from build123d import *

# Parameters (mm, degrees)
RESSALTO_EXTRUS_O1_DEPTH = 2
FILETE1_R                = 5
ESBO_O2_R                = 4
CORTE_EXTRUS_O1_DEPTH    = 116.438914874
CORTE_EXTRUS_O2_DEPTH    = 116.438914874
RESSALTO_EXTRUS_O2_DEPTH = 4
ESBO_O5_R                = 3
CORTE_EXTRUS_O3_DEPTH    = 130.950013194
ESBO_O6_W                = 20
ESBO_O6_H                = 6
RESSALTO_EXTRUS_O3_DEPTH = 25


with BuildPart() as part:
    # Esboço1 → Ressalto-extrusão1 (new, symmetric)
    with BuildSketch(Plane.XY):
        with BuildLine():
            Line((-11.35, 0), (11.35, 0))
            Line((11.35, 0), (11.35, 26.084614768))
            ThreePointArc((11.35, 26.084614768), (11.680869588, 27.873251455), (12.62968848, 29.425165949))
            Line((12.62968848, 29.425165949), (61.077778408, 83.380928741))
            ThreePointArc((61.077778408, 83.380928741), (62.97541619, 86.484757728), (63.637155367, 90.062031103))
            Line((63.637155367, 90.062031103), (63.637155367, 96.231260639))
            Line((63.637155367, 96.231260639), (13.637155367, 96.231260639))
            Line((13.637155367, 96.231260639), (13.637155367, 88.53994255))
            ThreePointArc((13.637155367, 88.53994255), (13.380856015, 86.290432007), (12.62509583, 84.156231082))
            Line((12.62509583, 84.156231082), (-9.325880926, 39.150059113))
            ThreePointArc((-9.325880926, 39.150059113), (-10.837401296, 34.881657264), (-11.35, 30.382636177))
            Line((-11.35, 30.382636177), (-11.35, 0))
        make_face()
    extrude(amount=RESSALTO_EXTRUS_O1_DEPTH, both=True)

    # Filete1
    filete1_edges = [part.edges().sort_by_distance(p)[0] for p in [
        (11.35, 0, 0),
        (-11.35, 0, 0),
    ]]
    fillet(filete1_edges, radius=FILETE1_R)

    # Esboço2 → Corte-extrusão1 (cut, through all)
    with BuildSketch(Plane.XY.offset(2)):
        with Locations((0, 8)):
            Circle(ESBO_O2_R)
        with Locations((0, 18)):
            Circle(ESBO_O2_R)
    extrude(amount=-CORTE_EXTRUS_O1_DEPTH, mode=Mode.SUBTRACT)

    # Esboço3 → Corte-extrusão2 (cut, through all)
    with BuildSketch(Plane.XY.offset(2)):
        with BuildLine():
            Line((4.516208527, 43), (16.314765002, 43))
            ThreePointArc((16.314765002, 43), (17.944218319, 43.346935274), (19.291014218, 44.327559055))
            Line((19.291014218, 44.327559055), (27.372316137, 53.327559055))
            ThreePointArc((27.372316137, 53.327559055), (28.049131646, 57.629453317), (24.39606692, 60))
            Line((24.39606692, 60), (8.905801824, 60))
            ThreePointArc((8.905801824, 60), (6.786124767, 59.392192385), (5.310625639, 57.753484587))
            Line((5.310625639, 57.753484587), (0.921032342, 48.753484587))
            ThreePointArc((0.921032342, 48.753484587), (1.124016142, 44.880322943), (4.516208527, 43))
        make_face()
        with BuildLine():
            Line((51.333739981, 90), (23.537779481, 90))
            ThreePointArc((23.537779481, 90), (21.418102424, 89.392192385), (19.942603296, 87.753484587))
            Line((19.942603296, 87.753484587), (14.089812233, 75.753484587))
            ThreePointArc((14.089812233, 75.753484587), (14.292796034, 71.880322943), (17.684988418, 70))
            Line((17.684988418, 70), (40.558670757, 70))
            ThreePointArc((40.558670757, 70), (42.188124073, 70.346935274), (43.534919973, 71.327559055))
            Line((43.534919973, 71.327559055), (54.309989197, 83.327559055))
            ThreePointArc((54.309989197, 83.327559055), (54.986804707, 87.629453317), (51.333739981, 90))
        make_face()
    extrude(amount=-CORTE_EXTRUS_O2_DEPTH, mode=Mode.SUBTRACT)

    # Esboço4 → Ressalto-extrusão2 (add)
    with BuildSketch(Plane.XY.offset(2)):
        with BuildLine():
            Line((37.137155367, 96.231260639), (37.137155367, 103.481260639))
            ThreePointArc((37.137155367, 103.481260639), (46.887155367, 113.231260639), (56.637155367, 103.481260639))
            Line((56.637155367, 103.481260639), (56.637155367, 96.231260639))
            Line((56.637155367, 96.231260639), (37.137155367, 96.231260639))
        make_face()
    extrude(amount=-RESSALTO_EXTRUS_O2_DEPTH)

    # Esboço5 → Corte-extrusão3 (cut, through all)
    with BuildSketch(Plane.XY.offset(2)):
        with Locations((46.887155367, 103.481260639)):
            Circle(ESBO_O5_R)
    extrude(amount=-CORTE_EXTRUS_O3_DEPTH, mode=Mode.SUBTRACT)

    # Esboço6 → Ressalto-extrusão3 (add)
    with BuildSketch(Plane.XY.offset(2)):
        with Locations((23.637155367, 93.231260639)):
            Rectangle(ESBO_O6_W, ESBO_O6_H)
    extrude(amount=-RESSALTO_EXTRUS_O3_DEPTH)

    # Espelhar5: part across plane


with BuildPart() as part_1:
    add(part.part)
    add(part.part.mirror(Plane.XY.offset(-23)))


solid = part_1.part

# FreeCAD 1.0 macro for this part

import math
import FreeCAD as App
import Part
import Sketcher
from FreeCAD import Vector
Q = App.Units.Quantity


def edges_at(feature, points):
    """Names of the edges that pass closest to the given points."""
    edges = feature.Shape.Edges
    near = lambda p: min(range(len(edges)), key=lambda i: edges[i].distToShape(Part.Vertex(*p))[0])
    return sorted({f"Edge{near(p) + 1}" for p in points})

doc = App.newDocument("Part")
body = doc.addObject("PartDesign::Body", "Body")

sketch1 = body.newObject("Sketcher::SketchObject", "Sketch")
sketch1.AttachmentSupport = (doc.getObject("XY_Plane"), [""])
sketch1.MapMode = "FlatFace"
sketch1.addGeometry([
    Part.LineSegment(Vector(-11.3, 0, 0), Vector(11.3, 0, 0)),
    Part.LineSegment(Vector(11.3, 0, 0), Vector(11.3, 26.1, 0)),
    Part.ArcOfCircle(Part.Circle(Vector(16.3, 26.1, 0), Vector(0, 0, 1), 5), math.radians(138), math.radians(180)),
    Part.LineSegment(Vector(12.6, 29.4, 0), Vector(61.1, 83.4, 0)),
    Part.ArcOfCircle(Part.Circle(Vector(53.6, 90.1, 0), Vector(0, 0, 1), 10), math.radians(-42), math.radians(0)),
    Part.LineSegment(Vector(63.6, 90.1, 0), Vector(63.6, 96.2, 0)),
    Part.LineSegment(Vector(63.6, 96.2, 0), Vector(13.6, 96.2, 0)),
    Part.LineSegment(Vector(13.6, 96.2, 0), Vector(13.6, 88.5, 0)),
    Part.ArcOfCircle(Part.Circle(Vector(3.6, 88.5, 0), Vector(0, 0, 1), 10), math.radians(-26), math.radians(0)),
    Part.LineSegment(Vector(12.6, 84.2, 0), Vector(-9.3, 39.2, 0)),
    Part.ArcOfCircle(Part.Circle(Vector(8.6, 30.4, 0), Vector(0, 0, 1), 20), math.radians(154), math.radians(180)),
    Part.LineSegment(Vector(-11.3, 30.4, 0), Vector(-11.3, 0, 0)),
], False)
sketch1.addConstraint([
    Sketcher.Constraint("Coincident", 0, 2, 1, 1),
    Sketcher.Constraint("Tangent", 1, 2, 2, 2),
    Sketcher.Constraint("Tangent", 2, 1, 3, 1),
    Sketcher.Constraint("Tangent", 3, 2, 4, 1),
    Sketcher.Constraint("Tangent", 4, 2, 5, 1),
    Sketcher.Constraint("Coincident", 5, 2, 6, 1),
    Sketcher.Constraint("Coincident", 6, 2, 7, 1),
    Sketcher.Constraint("Tangent", 7, 2, 8, 2),
    Sketcher.Constraint("Tangent", 8, 1, 9, 1),
    Sketcher.Constraint("Tangent", 9, 2, 10, 1),
    Sketcher.Constraint("Tangent", 10, 2, 11, 1),
    Sketcher.Constraint("Coincident", 11, 2, 0, 1),
    Sketcher.Constraint("Horizontal", 0),
    Sketcher.Constraint("Vertical", 1),
    Sketcher.Constraint("Vertical", 5),
    Sketcher.Constraint("Horizontal", 6),
    Sketcher.Constraint("Vertical", 7),
    Sketcher.Constraint("Vertical", 11),
    Sketcher.Constraint("Equal", 4, 8),
    Sketcher.Constraint("Symmetric", 0, 2, 11, 2, -1, 1),
    Sketcher.Constraint("Radius", 2, 5.0),
    Sketcher.Constraint("Radius", 4, 10.0),
    Sketcher.Constraint("Radius", 10, 20.0),
    Sketcher.Constraint("DistanceX", 6, 2, 6, 1, 50.0),
    Sketcher.Constraint("Angle", 9, Q("-116 deg")),
    Sketcher.Constraint("DistanceX", 0, 1, 0, 2, 22.7),
    Sketcher.Constraint("DistanceY", 5, 1, 5, 2, 6.16923),
    Sketcher.Constraint("DistanceY", 7, 2, 7, 1, 7.691318),
    Sketcher.Constraint("DistanceY", 1, 1, 1, 2, 26.084615),
    Sketcher.Constraint("DistanceY", 11, 2, 11, 1, 30.382636),
    Sketcher.Constraint("DistanceY", -1, 1, 4, 3, 90.062031),
])
pad1 = body.newObject("PartDesign::Pad", "Pad")
pad1.Profile = sketch1
pad1.Length = 4
pad1.Midplane = True
doc.recompute()

fillet = body.newObject("PartDesign::Fillet", "Fillet")
fillet.Base = (pad1, edges_at(pad1, [(11.35, 0, 0), (-11.35, 0, 0)]))
fillet.Radius = 5

sketch2 = body.newObject("Sketcher::SketchObject", "Sketch001")
sketch2.AttachmentSupport = (doc.getObject("XY_Plane"), [""])
sketch2.MapMode = "FlatFace"
sketch2.AttachmentOffset = App.Placement(Vector(0, 0, 2), App.Rotation())
sketch2.addGeometry([
    Part.Circle(Vector(0, 8, 0), Vector(0, 0, 1), 4),
    Part.Circle(Vector(0, 18, 0), Vector(0, 0, 1), 4),
], False)
sketch2.addConstraint([
    Sketcher.Constraint("Equal", 0, 1),
    Sketcher.Constraint("PointOnObject", 0, 3, -2),
    Sketcher.Constraint("PointOnObject", 1, 3, -2),
    Sketcher.Constraint("Diameter", 0, 8.0),
    Sketcher.Constraint("DistanceY", -1, 1, 0, 3, 8.0),
    Sketcher.Constraint("DistanceY", -1, 1, 1, 3, 18.0),
])
pocket1 = body.newObject("PartDesign::Pocket", "Pocket")
pocket1.Profile = sketch2
pocket1.Type = "ThroughAll"

sketch3 = body.newObject("Sketcher::SketchObject", "Sketch002")
sketch3.AttachmentSupport = (doc.getObject("XY_Plane"), [""])
sketch3.MapMode = "FlatFace"
sketch3.AttachmentOffset = App.Placement(Vector(0, 0, 2), App.Rotation())
sketch3.addGeometry([
    Part.LineSegment(Vector(4.5, 43, 0), Vector(16.3, 43, 0)),
    Part.ArcOfCircle(Part.Circle(Vector(16.3, 47, 0), Vector(0, 0, 1), 4), math.radians(-90), math.radians(-42)),
    Part.LineSegment(Vector(19.3, 44.3, 0), Vector(27.4, 53.3, 0)),
    Part.ArcOfCircle(Part.Circle(Vector(24.4, 56, 0), Vector(0, 0, 1), 4), math.radians(-42), math.radians(90)),
    Part.LineSegment(Vector(24.4, 60, 0), Vector(8.9, 60, 0)),
    Part.ArcOfCircle(Part.Circle(Vector(8.9, 56, 0), Vector(0, 0, 1), 4), math.radians(90), math.radians(154)),
    Part.LineSegment(Vector(5.3, 57.8, 0), Vector(0.9, 48.8, 0)),
    Part.ArcOfCircle(Part.Circle(Vector(4.5, 47, 0), Vector(0, 0, 1), 4), math.radians(154), math.radians(270)),
    Part.LineSegment(Vector(51.3, 90, 0), Vector(23.5, 90, 0)),
    Part.ArcOfCircle(Part.Circle(Vector(23.5, 86, 0), Vector(0, 0, 1), 4), math.radians(90), math.radians(154)),
    Part.LineSegment(Vector(19.9, 87.8, 0), Vector(14.1, 75.8, 0)),
    Part.ArcOfCircle(Part.Circle(Vector(17.7, 74, 0), Vector(0, 0, 1), 4), math.radians(154), math.radians(270)),
    Part.LineSegment(Vector(17.7, 70, 0), Vector(40.6, 70, 0)),
    Part.ArcOfCircle(Part.Circle(Vector(40.6, 74, 0), Vector(0, 0, 1), 4), math.radians(-90), math.radians(-42)),
    Part.LineSegment(Vector(43.5, 71.3, 0), Vector(54.3, 83.3, 0)),
    Part.ArcOfCircle(Part.Circle(Vector(51.3, 86, 0), Vector(0, 0, 1), 4), math.radians(-42), math.radians(90)),
], False)
sketch3.addConstraint([
    Sketcher.Constraint("Tangent", 0, 2, 1, 1),
    Sketcher.Constraint("Tangent", 1, 2, 2, 1),
    Sketcher.Constraint("Tangent", 2, 2, 3, 1),
    Sketcher.Constraint("Tangent", 3, 2, 4, 1),
    Sketcher.Constraint("Tangent", 4, 2, 5, 1),
    Sketcher.Constraint("Tangent", 5, 2, 6, 1),
    Sketcher.Constraint("Tangent", 6, 2, 7, 1),
    Sketcher.Constraint("Tangent", 7, 2, 0, 1),
    Sketcher.Constraint("Tangent", 8, 2, 9, 1),
    Sketcher.Constraint("Tangent", 9, 2, 10, 1),
    Sketcher.Constraint("Tangent", 10, 2, 11, 1),
    Sketcher.Constraint("Tangent", 11, 2, 12, 1),
    Sketcher.Constraint("Tangent", 12, 2, 13, 1),
    Sketcher.Constraint("Tangent", 13, 2, 14, 1),
    Sketcher.Constraint("Tangent", 14, 2, 15, 1),
    Sketcher.Constraint("Tangent", 15, 2, 8, 1),
    Sketcher.Constraint("Horizontal", 0),
    Sketcher.Constraint("Horizontal", 4),
    Sketcher.Constraint("Horizontal", 8),
    Sketcher.Constraint("Horizontal", 12),
    Sketcher.Constraint("Equal", 1, 3),
    Sketcher.Constraint("Equal", 3, 5),
    Sketcher.Constraint("Equal", 5, 7),
    Sketcher.Constraint("Equal", 7, 9),
    Sketcher.Constraint("Equal", 9, 11),
    Sketcher.Constraint("Equal", 11, 13),
    Sketcher.Constraint("Equal", 13, 15),
    Sketcher.Constraint("Parallel", 6, 10),
    Sketcher.Constraint("Parallel", 2, 14),
    Sketcher.Constraint("Radius", 1, 4.0),
    Sketcher.Constraint("Angle", 6, Q("-116 deg")),
    Sketcher.Constraint("DistanceY", -1, 1, 1, 3, 47.0),
    Sketcher.Constraint("DistanceY", -1, 1, 3, 3, 56.0),
    Sketcher.Constraint("DistanceY", -1, 1, 9, 3, 86.0),
    Sketcher.Constraint("DistanceY", -1, 1, 11, 3, 74.0),
    Sketcher.Constraint("DistanceX", 8, 2, 8, 1, 27.79596),
    Sketcher.Constraint("DistanceX", -1, 1, 5, 3, 8.905802),
    Sketcher.Constraint("DistanceX", 1, 3, 3, 3, 8.081302),
    Sketcher.Constraint("DistanceX", 0, 1, 0, 2, 11.798556),
    Sketcher.Constraint("DistanceX", -1, 1, 9, 3, 23.537779),
])
pocket2 = body.newObject("PartDesign::Pocket", "Pocket001")
pocket2.Profile = sketch3
pocket2.Type = "ThroughAll"

sketch4 = body.newObject("Sketcher::SketchObject", "Sketch003")
sketch4.AttachmentSupport = (doc.getObject("XY_Plane"), [""])
sketch4.MapMode = "FlatFace"
sketch4.AttachmentOffset = App.Placement(Vector(0, 0, 2), App.Rotation())
sketch4.addGeometry([
    Part.LineSegment(Vector(37, 103, 0), Vector(37, 96, 0)),
    Part.LineSegment(Vector(37, 96, 0), Vector(57, 96, 0)),
    Part.LineSegment(Vector(57, 96, 0), Vector(57, 103, 0)),
    Part.ArcOfCircle(Part.Circle(Vector(47, 103, 0), Vector(0, 0, 1), 10), math.radians(0), math.radians(180)),
], False)
sketch4.addConstraint([
    Sketcher.Constraint("Coincident", 0, 2, 1, 1),
    Sketcher.Constraint("Coincident", 1, 2, 2, 1),
    Sketcher.Constraint("Tangent", 2, 2, 3, 1),
    Sketcher.Constraint("Tangent", 3, 2, 0, 1),
    Sketcher.Constraint("Vertical", 0),
    Sketcher.Constraint("Horizontal", 1),
    Sketcher.Constraint("Vertical", 2),
    Sketcher.Constraint("Radius", 3, 9.75),
    Sketcher.Constraint("DistanceY", 0, 2, 0, 1, 7.25),
    Sketcher.Constraint("DistanceY", -1, 1, 3, 3, 103.481261),
    Sketcher.Constraint("DistanceX", -1, 1, 3, 3, 46.887155),
])
pad2 = body.newObject("PartDesign::Pad", "Pad001")
pad2.Profile = sketch4
pad2.Length = 4
pad2.Reversed = True

sketch5 = body.newObject("Sketcher::SketchObject", "Sketch004")
sketch5.AttachmentSupport = (doc.getObject("XY_Plane"), [""])
sketch5.MapMode = "FlatFace"
sketch5.AttachmentOffset = App.Placement(Vector(0, 0, 2), App.Rotation())
sketch5.addGeometry(Part.Circle(Vector(46.9, 103.5, 0), Vector(0, 0, 1), 3), False)
sketch5.addConstraint([
    Sketcher.Constraint("Diameter", 0, 6.0),
    Sketcher.Constraint("DistanceY", -1, 1, 0, 3, 103.481261),
    Sketcher.Constraint("DistanceX", -1, 1, 0, 3, 46.887155),
])
pocket3 = body.newObject("PartDesign::Pocket", "Pocket002")
pocket3.Profile = sketch5
pocket3.Type = "ThroughAll"

sketch6 = body.newObject("Sketcher::SketchObject", "Sketch005")
sketch6.AttachmentSupport = (doc.getObject("XY_Plane"), [""])
sketch6.MapMode = "FlatFace"
sketch6.AttachmentOffset = App.Placement(Vector(0, 0, 2), App.Rotation())
sketch6.addGeometry([
    Part.LineSegment(Vector(14, 96, 0), Vector(14, 90, 0)),
    Part.LineSegment(Vector(14, 90, 0), Vector(34, 90, 0)),
    Part.LineSegment(Vector(34, 90, 0), Vector(34, 96, 0)),
    Part.LineSegment(Vector(34, 96, 0), Vector(14, 96, 0)),
], False)
sketch6.addConstraint([
    Sketcher.Constraint("Coincident", 0, 2, 1, 1),
    Sketcher.Constraint("Coincident", 1, 2, 2, 1),
    Sketcher.Constraint("Coincident", 2, 2, 3, 1),
    Sketcher.Constraint("Coincident", 3, 2, 0, 1),
    Sketcher.Constraint("Vertical", 0),
    Sketcher.Constraint("Horizontal", 1),
    Sketcher.Constraint("Vertical", 2),
    Sketcher.Constraint("Horizontal", 3),
    Sketcher.Constraint("DistanceX", 1, 1, 1, 2, 20.0),
    Sketcher.Constraint("DistanceY", 0, 2, 0, 1, 6.0),
    Sketcher.Constraint("DistanceY", -1, 1, 0, 2, 90.231261),
    Sketcher.Constraint("DistanceX", -1, 1, 0, 2, 13.637155),
])
pad3 = body.newObject("PartDesign::Pad", "Pad002")
pad3.Profile = sketch6
pad3.Length = 25
pad3.Reversed = True
body2 = doc.addObject("PartDesign::Body", "Body001")
doc.recompute()

body2.BaseFeature = body
doc.recompute()

mirroring = doc.addObject("Part::Mirroring", "Mirroring")
mirroring.Source = body
mirroring.Base = Vector(0, 0, -23)
mirroring.Normal = Vector(0, 0, 1)
body3 = doc.addObject("PartDesign::Body", "Body002")
body3.BaseFeature = mirroring
boolean = body2.newObject("PartDesign::Boolean", "Boolean")
boolean.Type = "Fuse"
boolean.addObjects([body3])
doc.recompute()
mirroring.Visibility = False

doc.recompute()
